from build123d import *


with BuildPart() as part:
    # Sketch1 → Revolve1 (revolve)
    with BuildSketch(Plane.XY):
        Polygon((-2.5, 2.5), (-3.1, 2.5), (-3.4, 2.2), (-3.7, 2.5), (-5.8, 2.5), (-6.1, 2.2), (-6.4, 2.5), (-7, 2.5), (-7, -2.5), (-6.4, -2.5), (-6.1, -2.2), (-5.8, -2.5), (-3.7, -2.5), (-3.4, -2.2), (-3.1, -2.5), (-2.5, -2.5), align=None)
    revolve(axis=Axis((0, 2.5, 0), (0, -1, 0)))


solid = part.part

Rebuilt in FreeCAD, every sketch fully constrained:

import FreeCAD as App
import Part
import Sketcher
from FreeCAD import Vector


def add_polygon(sketch, points):
    """Adds a closed chain of lines whose ends are joined by coincident constraints."""
    first, n = sketch.GeometryCount, len(points)
    for a, b in zip(points, points[1:] + points[:1]):
        sketch.addGeometry(Part.LineSegment(App.Vector(*a, 0), App.Vector(*b, 0)), False)
    for i in range(n):
        sketch.addConstraint(Sketcher.Constraint("Coincident", first + i, 2, first + (i + 1) % n, 1))

doc = App.newDocument("Part")
body = doc.addObject("PartDesign::Body", "Body")

sketch1 = doc.addObject("Sketcher::SketchObject", "Sketch")
body.addObject(sketch1)
sketch1.AttachmentSupport = (doc.XY_Plane, [""])
sketch1.MapMode = "FlatFace"
add_polygon(sketch1, [(-2.5, 2.5), (-3.1, 2.5), (-3.4, 2.2), (-3.7, 2.5), (-5.8, 2.5), (-6.1, 2.2), (-6.4, 2.5), (-7, 2.5), (-7, -2.5), (-6.4, -2.5), (-6.1, -2.2), (-5.8, -2.5), (-3.7, -2.5), (-3.4, -2.2), (-3.1, -2.5), (-2.5, -2.5)])
sketch1.addConstraint([
    Sketcher.Constraint("Horizontal", 0),
    Sketcher.Constraint("Horizontal", 3),
    Sketcher.Constraint("Horizontal", 6),
    Sketcher.Constraint("Vertical", 7),
    Sketcher.Constraint("Horizontal", 8),
    Sketcher.Constraint("Horizontal", 11),
    Sketcher.Constraint("Horizontal", 14),
    Sketcher.Constraint("Vertical", 15),
    Sketcher.Constraint("Symmetric", 5, 2, 8, 2, -1),
    Sketcher.Constraint("Symmetric", 4, 2, 9, 2, -1),
    Sketcher.Constraint("Symmetric", 3, 2, 10, 2, -1),
    Sketcher.Constraint("Symmetric", 1, 2, 12, 2, -1),
    Sketcher.Constraint("Symmetric", 0, 2, 13, 2, -1),
    Sketcher.Constraint("Perpendicular", 1, 2),
    Sketcher.Constraint("Perpendicular", 2, 4),
    Sketcher.Constraint("Perpendicular", 4, 5),
    Sketcher.Constraint("Perpendicular", 5, 9),
    Sketcher.Constraint("Perpendicular", 10, 12),
    Sketcher.Constraint("Horizontal", 0, 2, 2, 2),
    Sketcher.Constraint("Horizontal", 1, 2, 4, 2),
    Sketcher.Constraint("Horizontal", 3, 2, 5, 2),
    Sketcher.Constraint("Equal", 0, 6),
    Sketcher.Constraint("DistanceY", 7, 2, 7, 1, 5.0),
    Sketcher.Constraint("DistanceX", 0, 2, 0, 1, 0.6),
    Sketcher.Constraint("DistanceX", 3, 2, 3, 1, 2.1),
    Sketcher.Constraint("DistanceX", 6, 2, -1, 1, 7.0),
    Sketcher.Constraint("DistanceX", 4, 2, 0, 2, 3.0),
])
revolution = doc.addObject("PartDesign::Revolution", "Revolution")
body.addObject(revolution)
revolution.Profile = sketch1
revolution.ReferenceAxis = (sketch1, ["V_Axis"])
revolution.Angle = 360

doc.recompute()
